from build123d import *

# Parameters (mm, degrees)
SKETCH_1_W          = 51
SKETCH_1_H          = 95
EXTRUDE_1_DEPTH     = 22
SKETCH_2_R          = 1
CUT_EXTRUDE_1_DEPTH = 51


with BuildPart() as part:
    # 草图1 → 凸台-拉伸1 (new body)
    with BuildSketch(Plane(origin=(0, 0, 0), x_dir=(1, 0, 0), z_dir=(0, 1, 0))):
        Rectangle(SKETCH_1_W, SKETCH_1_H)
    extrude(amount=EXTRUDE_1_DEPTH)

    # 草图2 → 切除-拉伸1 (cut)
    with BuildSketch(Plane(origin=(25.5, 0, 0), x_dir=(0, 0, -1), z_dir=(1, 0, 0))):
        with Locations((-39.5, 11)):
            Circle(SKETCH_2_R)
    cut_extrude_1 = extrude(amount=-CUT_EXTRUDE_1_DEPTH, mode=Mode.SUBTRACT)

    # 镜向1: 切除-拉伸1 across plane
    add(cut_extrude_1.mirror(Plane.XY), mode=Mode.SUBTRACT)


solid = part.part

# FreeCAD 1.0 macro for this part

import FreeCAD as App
import Part
import Sketcher

V = App.Vector


def add_polygon(sketch, points):
    """Adds a closed chain of lines whose ends are joined by coincident constraints."""
    first, n = sketch.GeometryCount, len(points)
    for a, b in zip(points, points[1:] + points[:1]):
        sketch.addGeometry(Part.LineSegment(App.Vector(*a, 0), App.Vector(*b, 0)), False)
    for i in range(n):
        sketch.addConstraint(Sketcher.Constraint("Coincident", first + i, 2, first + (i + 1) % n, 1))

doc = App.newDocument("Part")
body = doc.addObject("PartDesign::Body", "Body")

# Sketch on XZ plane
sketch1 = body.newObject("Sketcher::SketchObject", "Sketch")
sketch1.AttachmentSupport = (doc.getObject("XZ_Plane"), [""])
sketch1.MapMode = "FlatFace"
add_polygon(sketch1, [(-26, -48), (-26, 48), (26, 48), (26, -48)])  # lines 0-3
sketch1.addConstraint([
    Sketcher.Constraint("Vertical", 0),
    Sketcher.Constraint("Horizontal", 1),
    Sketcher.Constraint("Vertical", 2),
    Sketcher.Constraint("Horizontal", 3),
    Sketcher.Constraint("Symmetric", 0, 2, 2, 2, -1, 1),
    Sketcher.Constraint("DistanceX", 1, 1, 1, 2, 51.0),
    Sketcher.Constraint("DistanceY", 0, 1, 0, 2, 95.0),
])
pad1 = body.newObject("PartDesign::Pad", "Pad")
pad1.Profile = sketch1
pad1.Length = 22
pad1.Reversed = True

# Sketch on YZ plane
sketch2 = body.newObject("Sketcher::SketchObject", "Sketch001")
sketch2.AttachmentSupport = (doc.getObject("YZ_Plane"), [""])
sketch2.MapMode = "FlatFace"
sketch2.AttachmentOffset = App.Placement(V(0, 0, 25.5), App.Rotation())
sketch2.addGeometry(Part.Circle(V(11, 39.5, 0), V(0, 0, 1), 1), False)
sketch2.addConstraint([
    Sketcher.Constraint("Diameter", 0, 2.0),
    Sketcher.Constraint("DistanceX", -1, 1, 0, 3, 11.0),
    Sketcher.Constraint("DistanceY", -1, 1, 0, 3, 39.5),
])
pocket1 = body.newObject("PartDesign::Pocket", "Pocket")
pocket1.Profile = sketch2
pocket1.Length = 51
doc.recompute()

mirrored = body.newObject("PartDesign::Mirrored", "Mirrored")
mirrored.Originals = [pocket1]
mirrored.MirrorPlane = (doc.getObject("XY_Plane"), [""])
body.Tip = mirrored

doc.recompute()
